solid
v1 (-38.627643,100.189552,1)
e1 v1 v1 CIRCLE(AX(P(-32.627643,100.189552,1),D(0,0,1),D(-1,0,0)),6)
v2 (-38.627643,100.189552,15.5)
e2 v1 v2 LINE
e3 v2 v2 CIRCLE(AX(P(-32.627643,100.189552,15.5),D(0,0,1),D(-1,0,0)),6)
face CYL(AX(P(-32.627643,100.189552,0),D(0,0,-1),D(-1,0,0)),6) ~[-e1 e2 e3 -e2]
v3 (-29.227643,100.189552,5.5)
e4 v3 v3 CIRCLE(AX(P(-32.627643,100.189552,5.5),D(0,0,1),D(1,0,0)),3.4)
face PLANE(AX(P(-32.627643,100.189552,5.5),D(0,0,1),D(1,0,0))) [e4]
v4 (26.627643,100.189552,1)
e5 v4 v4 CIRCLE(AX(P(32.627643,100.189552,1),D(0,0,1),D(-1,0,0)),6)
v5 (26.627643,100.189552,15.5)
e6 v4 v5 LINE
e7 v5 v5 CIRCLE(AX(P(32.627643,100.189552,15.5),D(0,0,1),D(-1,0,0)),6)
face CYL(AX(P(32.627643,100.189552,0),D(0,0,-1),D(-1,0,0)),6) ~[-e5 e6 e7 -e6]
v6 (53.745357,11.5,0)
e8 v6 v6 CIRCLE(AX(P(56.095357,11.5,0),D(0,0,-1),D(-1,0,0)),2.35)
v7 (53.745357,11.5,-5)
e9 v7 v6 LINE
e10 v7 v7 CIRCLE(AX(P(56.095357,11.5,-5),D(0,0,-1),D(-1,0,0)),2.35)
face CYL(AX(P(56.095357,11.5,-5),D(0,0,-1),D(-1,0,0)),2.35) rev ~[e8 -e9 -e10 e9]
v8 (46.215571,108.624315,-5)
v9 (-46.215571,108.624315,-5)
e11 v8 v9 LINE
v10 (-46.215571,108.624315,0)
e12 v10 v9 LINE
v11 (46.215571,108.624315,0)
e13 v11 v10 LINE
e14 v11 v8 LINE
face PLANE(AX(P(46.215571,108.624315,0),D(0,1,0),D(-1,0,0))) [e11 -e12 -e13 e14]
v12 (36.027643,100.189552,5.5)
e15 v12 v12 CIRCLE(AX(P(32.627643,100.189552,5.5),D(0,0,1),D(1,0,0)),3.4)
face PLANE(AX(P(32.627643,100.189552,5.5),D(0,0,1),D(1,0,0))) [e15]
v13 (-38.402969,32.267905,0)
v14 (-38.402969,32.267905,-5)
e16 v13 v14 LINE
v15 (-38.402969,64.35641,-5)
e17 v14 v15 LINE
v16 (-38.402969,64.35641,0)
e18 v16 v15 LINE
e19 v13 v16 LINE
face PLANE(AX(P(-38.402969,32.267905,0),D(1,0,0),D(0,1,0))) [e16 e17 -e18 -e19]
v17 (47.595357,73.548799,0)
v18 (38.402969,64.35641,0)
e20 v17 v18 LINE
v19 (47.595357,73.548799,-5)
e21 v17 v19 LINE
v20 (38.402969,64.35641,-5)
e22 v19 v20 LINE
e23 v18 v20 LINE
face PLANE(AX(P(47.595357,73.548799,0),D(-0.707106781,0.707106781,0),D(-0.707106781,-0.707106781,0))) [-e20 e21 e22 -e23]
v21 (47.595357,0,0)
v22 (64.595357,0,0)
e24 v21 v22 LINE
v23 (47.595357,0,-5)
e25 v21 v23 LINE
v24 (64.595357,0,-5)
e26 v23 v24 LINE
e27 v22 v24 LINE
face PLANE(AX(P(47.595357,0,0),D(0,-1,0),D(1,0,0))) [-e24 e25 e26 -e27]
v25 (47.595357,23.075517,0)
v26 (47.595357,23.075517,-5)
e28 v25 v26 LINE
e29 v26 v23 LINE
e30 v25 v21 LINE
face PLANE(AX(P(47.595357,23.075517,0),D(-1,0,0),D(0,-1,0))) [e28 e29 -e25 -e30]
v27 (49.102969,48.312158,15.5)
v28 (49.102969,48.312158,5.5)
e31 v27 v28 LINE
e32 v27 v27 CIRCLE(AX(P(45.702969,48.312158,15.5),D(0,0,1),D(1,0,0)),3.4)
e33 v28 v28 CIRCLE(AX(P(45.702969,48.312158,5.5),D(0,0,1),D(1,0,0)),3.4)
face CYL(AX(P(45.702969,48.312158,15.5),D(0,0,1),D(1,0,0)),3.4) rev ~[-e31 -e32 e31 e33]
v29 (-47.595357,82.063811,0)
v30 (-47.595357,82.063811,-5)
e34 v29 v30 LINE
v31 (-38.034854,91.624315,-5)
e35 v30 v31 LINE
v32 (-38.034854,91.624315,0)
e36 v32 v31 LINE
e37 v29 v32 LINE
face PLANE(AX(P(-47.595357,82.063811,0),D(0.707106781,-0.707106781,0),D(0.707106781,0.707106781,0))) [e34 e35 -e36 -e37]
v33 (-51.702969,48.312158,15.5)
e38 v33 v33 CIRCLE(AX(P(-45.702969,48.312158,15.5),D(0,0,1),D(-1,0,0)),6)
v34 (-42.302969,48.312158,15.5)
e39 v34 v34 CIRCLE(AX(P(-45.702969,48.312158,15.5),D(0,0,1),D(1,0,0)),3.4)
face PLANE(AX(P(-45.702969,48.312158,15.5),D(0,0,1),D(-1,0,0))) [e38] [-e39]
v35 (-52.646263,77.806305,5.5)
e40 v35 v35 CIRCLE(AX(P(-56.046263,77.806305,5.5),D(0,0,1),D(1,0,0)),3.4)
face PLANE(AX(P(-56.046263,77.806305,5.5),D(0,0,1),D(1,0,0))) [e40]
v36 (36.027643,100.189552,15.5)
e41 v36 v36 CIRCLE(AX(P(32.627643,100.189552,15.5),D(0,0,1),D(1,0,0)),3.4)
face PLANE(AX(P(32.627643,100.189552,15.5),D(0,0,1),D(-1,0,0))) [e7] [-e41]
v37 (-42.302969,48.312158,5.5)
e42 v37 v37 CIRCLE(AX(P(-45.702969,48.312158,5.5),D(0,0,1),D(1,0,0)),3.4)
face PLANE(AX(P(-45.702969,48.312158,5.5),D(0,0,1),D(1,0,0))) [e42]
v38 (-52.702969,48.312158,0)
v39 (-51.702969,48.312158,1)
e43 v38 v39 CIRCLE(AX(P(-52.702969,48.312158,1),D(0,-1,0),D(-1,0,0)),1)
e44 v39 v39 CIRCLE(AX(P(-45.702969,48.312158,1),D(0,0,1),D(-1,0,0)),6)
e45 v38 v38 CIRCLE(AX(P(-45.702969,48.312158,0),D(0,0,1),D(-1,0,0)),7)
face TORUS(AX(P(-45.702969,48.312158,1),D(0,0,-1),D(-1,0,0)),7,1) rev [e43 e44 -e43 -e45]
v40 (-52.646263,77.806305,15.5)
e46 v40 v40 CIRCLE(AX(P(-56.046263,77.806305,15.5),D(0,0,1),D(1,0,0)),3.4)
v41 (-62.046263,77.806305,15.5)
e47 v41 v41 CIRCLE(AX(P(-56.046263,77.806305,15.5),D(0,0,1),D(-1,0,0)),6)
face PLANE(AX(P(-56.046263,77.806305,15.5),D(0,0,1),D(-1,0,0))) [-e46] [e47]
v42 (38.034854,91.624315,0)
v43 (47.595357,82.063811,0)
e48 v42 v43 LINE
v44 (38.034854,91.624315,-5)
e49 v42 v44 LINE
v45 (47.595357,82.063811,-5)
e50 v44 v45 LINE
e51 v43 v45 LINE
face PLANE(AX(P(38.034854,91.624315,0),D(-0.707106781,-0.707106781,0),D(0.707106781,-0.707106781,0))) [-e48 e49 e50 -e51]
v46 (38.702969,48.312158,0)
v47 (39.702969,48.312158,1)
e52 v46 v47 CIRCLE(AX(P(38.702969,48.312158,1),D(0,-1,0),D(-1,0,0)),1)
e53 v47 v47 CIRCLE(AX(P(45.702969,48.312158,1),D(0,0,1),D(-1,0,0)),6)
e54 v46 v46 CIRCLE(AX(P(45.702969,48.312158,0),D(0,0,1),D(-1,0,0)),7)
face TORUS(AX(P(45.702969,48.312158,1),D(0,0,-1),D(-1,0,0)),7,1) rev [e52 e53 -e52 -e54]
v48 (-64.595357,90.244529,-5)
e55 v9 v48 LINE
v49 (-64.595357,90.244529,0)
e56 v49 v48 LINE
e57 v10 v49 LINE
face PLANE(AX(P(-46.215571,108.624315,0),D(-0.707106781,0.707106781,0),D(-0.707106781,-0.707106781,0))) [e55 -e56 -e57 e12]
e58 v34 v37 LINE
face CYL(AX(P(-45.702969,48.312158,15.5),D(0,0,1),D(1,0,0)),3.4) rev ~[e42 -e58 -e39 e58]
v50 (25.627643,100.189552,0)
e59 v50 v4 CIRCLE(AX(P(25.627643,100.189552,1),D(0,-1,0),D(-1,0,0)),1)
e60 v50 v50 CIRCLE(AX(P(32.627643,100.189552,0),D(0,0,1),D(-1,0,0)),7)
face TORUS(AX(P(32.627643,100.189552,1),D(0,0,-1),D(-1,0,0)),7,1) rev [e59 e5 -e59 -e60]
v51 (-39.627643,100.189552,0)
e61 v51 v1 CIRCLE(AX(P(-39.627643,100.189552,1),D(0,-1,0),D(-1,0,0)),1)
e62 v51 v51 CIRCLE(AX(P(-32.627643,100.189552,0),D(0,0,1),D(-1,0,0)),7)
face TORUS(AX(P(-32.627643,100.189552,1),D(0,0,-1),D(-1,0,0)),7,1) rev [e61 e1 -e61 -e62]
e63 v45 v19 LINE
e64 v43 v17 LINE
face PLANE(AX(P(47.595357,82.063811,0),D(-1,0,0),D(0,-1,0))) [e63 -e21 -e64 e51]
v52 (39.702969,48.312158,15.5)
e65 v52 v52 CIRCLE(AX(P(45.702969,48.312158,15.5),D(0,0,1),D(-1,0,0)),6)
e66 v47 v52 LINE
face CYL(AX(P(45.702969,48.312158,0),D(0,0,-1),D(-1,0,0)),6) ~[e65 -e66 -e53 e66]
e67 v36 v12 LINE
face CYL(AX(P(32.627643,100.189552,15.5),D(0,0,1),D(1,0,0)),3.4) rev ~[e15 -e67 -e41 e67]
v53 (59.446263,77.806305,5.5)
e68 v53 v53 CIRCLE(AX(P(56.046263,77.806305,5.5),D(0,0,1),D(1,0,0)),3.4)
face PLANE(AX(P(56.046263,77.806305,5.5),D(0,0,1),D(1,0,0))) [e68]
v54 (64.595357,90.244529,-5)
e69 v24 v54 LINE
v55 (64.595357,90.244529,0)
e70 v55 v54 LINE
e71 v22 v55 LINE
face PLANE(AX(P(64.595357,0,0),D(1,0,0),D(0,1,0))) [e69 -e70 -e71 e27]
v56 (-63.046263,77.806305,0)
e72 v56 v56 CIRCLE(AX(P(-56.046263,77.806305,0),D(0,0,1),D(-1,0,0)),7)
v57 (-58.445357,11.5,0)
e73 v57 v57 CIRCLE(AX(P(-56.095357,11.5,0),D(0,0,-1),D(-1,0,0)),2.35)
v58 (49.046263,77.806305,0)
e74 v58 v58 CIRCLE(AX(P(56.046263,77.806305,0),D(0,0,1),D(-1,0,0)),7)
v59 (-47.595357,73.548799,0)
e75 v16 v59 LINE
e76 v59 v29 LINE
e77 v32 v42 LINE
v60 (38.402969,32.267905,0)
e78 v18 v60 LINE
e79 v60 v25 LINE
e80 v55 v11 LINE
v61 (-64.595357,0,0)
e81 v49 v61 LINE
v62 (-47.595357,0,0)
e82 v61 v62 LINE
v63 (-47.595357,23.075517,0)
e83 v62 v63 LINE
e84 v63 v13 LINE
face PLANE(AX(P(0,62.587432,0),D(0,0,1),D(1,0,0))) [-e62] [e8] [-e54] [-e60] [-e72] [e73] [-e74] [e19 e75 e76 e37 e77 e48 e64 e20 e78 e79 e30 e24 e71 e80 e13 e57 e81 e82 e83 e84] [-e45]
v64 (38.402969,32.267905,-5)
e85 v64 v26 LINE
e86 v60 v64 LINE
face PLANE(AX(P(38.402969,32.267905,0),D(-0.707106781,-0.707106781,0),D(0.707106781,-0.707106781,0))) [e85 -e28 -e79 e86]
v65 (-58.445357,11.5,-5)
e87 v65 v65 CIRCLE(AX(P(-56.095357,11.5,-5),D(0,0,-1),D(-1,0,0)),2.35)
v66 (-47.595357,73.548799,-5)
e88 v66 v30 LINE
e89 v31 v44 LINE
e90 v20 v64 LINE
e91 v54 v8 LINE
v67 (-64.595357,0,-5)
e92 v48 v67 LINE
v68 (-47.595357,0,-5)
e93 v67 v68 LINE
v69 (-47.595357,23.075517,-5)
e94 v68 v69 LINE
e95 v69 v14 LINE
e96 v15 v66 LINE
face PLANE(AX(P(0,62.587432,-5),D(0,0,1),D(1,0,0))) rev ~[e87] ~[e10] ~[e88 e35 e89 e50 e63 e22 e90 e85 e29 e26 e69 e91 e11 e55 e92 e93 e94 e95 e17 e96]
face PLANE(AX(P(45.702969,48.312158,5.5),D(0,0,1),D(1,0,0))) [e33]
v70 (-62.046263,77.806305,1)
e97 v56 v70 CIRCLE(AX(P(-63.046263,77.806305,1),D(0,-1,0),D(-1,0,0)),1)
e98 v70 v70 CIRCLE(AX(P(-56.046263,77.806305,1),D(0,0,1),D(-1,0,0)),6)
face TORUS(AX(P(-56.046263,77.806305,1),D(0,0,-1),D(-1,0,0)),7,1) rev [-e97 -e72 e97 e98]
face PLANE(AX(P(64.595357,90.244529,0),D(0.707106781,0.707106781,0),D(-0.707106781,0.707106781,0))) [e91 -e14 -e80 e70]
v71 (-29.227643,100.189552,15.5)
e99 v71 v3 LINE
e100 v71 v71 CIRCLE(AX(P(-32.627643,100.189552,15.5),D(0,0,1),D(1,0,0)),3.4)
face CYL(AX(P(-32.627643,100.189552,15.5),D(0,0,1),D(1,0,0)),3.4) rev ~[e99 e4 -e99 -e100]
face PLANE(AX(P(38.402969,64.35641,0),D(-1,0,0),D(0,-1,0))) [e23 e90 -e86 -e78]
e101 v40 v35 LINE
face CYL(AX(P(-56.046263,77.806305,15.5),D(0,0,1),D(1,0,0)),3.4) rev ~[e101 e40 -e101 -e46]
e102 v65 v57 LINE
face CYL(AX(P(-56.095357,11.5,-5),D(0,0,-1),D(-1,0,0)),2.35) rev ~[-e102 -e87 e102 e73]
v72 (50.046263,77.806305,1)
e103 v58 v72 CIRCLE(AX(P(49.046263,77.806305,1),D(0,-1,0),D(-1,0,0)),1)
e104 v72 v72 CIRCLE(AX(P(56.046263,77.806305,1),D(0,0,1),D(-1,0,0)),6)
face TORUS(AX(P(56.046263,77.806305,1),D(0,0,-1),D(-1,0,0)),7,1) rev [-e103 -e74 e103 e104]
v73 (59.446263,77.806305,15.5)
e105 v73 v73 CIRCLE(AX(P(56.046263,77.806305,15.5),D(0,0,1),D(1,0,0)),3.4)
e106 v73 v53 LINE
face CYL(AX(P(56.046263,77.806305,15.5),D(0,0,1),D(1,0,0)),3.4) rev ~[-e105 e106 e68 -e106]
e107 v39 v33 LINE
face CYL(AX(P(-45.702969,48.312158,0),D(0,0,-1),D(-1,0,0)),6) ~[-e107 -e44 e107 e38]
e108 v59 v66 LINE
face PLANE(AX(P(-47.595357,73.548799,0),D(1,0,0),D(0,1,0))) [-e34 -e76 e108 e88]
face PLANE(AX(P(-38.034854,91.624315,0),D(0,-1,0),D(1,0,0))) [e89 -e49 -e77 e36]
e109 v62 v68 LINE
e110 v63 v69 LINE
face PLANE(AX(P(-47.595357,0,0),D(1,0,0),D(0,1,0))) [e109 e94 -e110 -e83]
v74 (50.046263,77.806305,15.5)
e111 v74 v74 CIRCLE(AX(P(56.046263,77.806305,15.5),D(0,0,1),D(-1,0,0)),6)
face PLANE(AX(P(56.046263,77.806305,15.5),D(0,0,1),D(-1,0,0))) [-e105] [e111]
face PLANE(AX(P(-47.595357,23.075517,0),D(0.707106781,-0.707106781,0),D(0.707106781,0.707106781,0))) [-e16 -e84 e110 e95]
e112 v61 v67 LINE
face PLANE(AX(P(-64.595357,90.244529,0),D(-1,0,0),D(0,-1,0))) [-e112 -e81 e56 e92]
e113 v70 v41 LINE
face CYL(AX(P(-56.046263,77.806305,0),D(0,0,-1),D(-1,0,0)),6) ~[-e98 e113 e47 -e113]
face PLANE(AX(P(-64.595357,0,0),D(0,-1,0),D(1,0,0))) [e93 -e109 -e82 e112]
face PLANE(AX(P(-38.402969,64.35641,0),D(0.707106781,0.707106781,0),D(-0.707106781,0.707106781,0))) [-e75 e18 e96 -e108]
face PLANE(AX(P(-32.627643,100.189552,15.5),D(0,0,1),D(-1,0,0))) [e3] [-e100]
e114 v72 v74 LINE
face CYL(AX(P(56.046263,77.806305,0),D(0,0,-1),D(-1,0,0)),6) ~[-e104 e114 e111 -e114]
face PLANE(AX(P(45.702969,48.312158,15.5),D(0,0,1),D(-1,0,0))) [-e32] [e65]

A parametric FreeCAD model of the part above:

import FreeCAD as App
import Part
import Sketcher
from FreeCAD import Vector


def edges_at(feature, points):
    """Names of the edges that pass closest to the given points."""
    edges = feature.Shape.Edges
    near = lambda p: min(range(len(edges)), key=lambda i: edges[i].distToShape(Part.Vertex(*p))[0])
    return sorted({f"Edge{near(p) + 1}" for p in points})


def add_polygon(sketch, points):
    """Adds a closed chain of lines whose ends are joined by coincident constraints."""
    first, n = sketch.GeometryCount, len(points)
    for a, b in zip(points, points[1:] + points[:1]):
        sketch.addGeometry(Part.LineSegment(App.Vector(*a, 0), App.Vector(*b, 0)), False)
    for i in range(n):
        sketch.addConstraint(Sketcher.Constraint("Coincident", first + i, 2, first + (i + 1) % n, 1))

doc = App.newDocument("Part")
params = doc.addObject("Spreadsheet::Sheet", "Params")
for row, (alias, value) in enumerate([
    ("sketch1_width", "17 mm"),
    ("sketch1_length", "13 mm"),
    ("pad1_length", "5 mm"),
    ("sketch2_diameter", "12 mm"),
    ("pad2_length", "15.5 mm"),
    ("fillet_radius", "1 mm"),
    ("sketch3_diameter", "4.7 mm"),
    ("sketch4_diameter", "4.7 mm"),
    ("sketch5_diameter", "6.8 mm"),
    ("pocket3_length", "10 mm"),
], start=1):
    params.set(f"A{row}", alias)
    params.set(f"B{row}", "=" + value)
    params.setAlias(f"B{row}", alias)

body = doc.addObject("PartDesign::Body", "Body")

# Sketch on XY plane
sketch1 = body.newObject("Sketcher::SketchObject", "Sketch")
sketch1.AttachmentSupport = (doc.getObject("XY_Plane"), [""])
sketch1.MapMode = "FlatFace"
add_polygon(sketch1, [(-38.034854, 91.624315), (38.034854, 91.624315), (47.595357, 82.063811), (47.595357, 73.548799), (38.402969, 64.35641), (38.402969, 32.267905), (47.595357, 23.075517), (47.595357, 0), (64.595357, 0), (64.595357, 90.244529), (46.215571, 108.624315), (-46.215571, 108.624315), (-64.595357, 90.244529), (-64.595357, 0), (-47.595357, 0), (-47.595357, 23.075517), (-38.402969, 32.267905), (-38.402969, 64.35641), (-47.595357, 73.548799), (-47.595357, 82.063811)])  # lines 0-19
sketch1.addConstraint([
    Sketcher.Constraint("Horizontal", 0),
    Sketcher.Constraint("Vertical", 2),
    Sketcher.Constraint("Vertical", 4),
    Sketcher.Constraint("Vertical", 6),
    Sketcher.Constraint("Horizontal", 7),
    Sketcher.Constraint("Vertical", 8),
    Sketcher.Constraint("Horizontal", 10),
    Sketcher.Constraint("Vertical", 12),
    Sketcher.Constraint("Horizontal", 13),
    Sketcher.Constraint("Vertical", 14),
    Sketcher.Constraint("Vertical", 16),
    Sketcher.Constraint("Vertical", 18),
    Sketcher.Constraint("Symmetric", 7, 2, 12, 2, -1, 1),
    Sketcher.Constraint("Symmetric", 6, 2, 13, 2, -2),
    Sketcher.Constraint("Symmetric", 4, 2, 15, 2, -2),
    Sketcher.Constraint("Symmetric", 2, 2, 17, 2, -2),
    Sketcher.Constraint("Perpendicular", 1, 3),
    Sketcher.Constraint("Perpendicular", 3, 5),
    Sketcher.Constraint("Parallel", 5, 9),
    Sketcher.Constraint("Perpendicular", 9, 11),
    Sketcher.Constraint("Parallel", 11, 15),
    Sketcher.Constraint("Perpendicular", 15, 17),
    Sketcher.Constraint("Perpendicular", 17, 19),
    Sketcher.Constraint("Horizontal", 8, 2, 11, 2),
    Sketcher.Constraint("Horizontal", 5, 2, 14, 2),
    Sketcher.Constraint("Horizontal", 1, 2, 18, 2),
    Sketcher.Constraint("Vertical", 2, 2, 5, 2),
    Sketcher.Constraint("DistanceX", 7, 1, 7, 2, 17.0),
    Sketcher.Constraint("Distance", 3, 13.0),
    Sketcher.Constraint("DistanceY", 0, 2, 9, 2, 17.0),
    Sketcher.Constraint("DistanceX", 10, 2, 10, 1, 92.431142),
    Sketcher.Constraint("DistanceY", 8, 1, 8, 2, 90.244529),
    Sketcher.Constraint("DistanceY", -1, 1, 2, 2, 73.548799),
    Sketcher.Constraint("DistanceY", 3, 2, 1, 2, 17.707401),
    Sketcher.Constraint("DistanceY", 5, 2, 0, 2, 68.548799),
    Sketcher.Constraint("DistanceX", 3, 2, 9, 2, 7.812602),
])
sketch1.setExpression("Constraints[47]", "Params.sketch1_width")
sketch1.setExpression("Constraints[48]", "Params.sketch1_length")
pad1 = body.newObject("PartDesign::Pad", "Pad")
pad1.Profile = sketch1
pad1.setExpression("Length", "Params.pad1_length")
pad1.Reversed = True

# Sketch on XY plane
sketch2 = body.newObject("Sketcher::SketchObject", "Sketch001")
sketch2.AttachmentSupport = (doc.getObject("XY_Plane"), [""])
sketch2.MapMode = "FlatFace"
sketch2.addGeometry([
    Part.Circle(Vector(45.702969, 48.312158, 0), Vector(0, 0, 1), 6),  # 0
    Part.Circle(Vector(56.046263, 77.806305, 0), Vector(0, 0, 1), 6),  # 1
    Part.Circle(Vector(32.627643, 100.189552, 0), Vector(0, 0, 1), 6),  # 2
    Part.Circle(Vector(-32.627643, 100.189552, 0), Vector(0, 0, 1), 6),  # 3
    Part.Circle(Vector(-45.702969, 48.312158, 0), Vector(0, 0, 1), 6),  # 4
    Part.Circle(Vector(-56.046263, 77.806305, 0), Vector(0, 0, 1), 6),  # 5
], False)
sketch2.addConstraint([
    Sketcher.Constraint("Equal", 0, 1),
    Sketcher.Constraint("Equal", 1, 2),
    Sketcher.Constraint("Equal", 2, 3),
    Sketcher.Constraint("Equal", 3, 4),
    Sketcher.Constraint("Equal", 4, 5),
    Sketcher.Constraint("Symmetric", 2, 3, 3, 3, -2),
    Sketcher.Constraint("Symmetric", 0, 3, 4, 3, -2),
    Sketcher.Constraint("Symmetric", 1, 3, 5, 3, -2),
    Sketcher.Constraint("Diameter", 0, 12.0),
    Sketcher.Constraint("DistanceX", -1, 1, 0, 3, 45.702969),
    Sketcher.Constraint("DistanceX", 2, 3, 1, 3, 23.41862),
    Sketcher.Constraint("DistanceY", -1, 1, 0, 3, 48.312158),
    Sketcher.Constraint("DistanceX", -1, 1, 1, 3, 56.046263),
    Sketcher.Constraint("DistanceY", -1, 1, 1, 3, 77.806305),
    Sketcher.Constraint("DistanceY", -1, 1, 2, 3, 100.189552),
])
sketch2.setExpression("Constraints[8]", "Params.sketch2_diameter")
pad2 = body.newObject("PartDesign::Pad", "Pad001")
pad2.Profile = sketch2
pad2.setExpression("Length", "Params.pad2_length")
doc.recompute()

fillet = body.newObject("PartDesign::Fillet", "Fillet")
fillet.Base = (pad2, edges_at(pad2, [
    (51.703, 48.312, 0),
    (-50.046, 77.806, 0),
    (-39.703, 48.312, 0),
    (-26.628, 100.19, 0),
    (38.628, 100.19, 0),
    (62.046, 77.806, 0),
]))
fillet.setExpression("Radius", "Params.fillet_radius")

# Sketch on XY plane
sketch3 = body.newObject("Sketcher::SketchObject", "Sketch002")
sketch3.AttachmentSupport = (doc.getObject("XY_Plane"), [""])
sketch3.MapMode = "FlatFace"
sketch3.AttachmentOffset = App.Placement(Vector(0, 0, -5), App.Rotation())
sketch3.addGeometry(Part.Circle(Vector(-56.095357, 11.5, 0), Vector(0, 0, 1), 2.35), False)
sketch3.addConstraint([
    Sketcher.Constraint("Diameter", 0, 4.7),
    Sketcher.Constraint("DistanceY", -1, 1, 0, 3, 11.5),
    Sketcher.Constraint("DistanceX", 0, 3, -1, 1, 56.095357),
])
sketch3.setExpression("Constraints[0]", "Params.sketch3_diameter")
pocket1 = body.newObject("PartDesign::Pocket", "Pocket")
pocket1.Profile = sketch3
pocket1.Type = "UpToFirst"
pocket1.Reversed = True

# Sketch on XY plane
sketch4 = body.newObject("Sketcher::SketchObject", "Sketch003")
sketch4.AttachmentSupport = (doc.getObject("XY_Plane"), [""])
sketch4.MapMode = "FlatFace"
sketch4.AttachmentOffset = App.Placement(Vector(0, 0, -5), App.Rotation())
sketch4.addGeometry(Part.Circle(Vector(56.095357, 11.5, 0), Vector(0, 0, 1), 2.35), False)
sketch4.addConstraint([
    Sketcher.Constraint("Diameter", 0, 4.7),
    Sketcher.Constraint("DistanceY", -1, 1, 0, 3, 11.5),
    Sketcher.Constraint("DistanceX", -1, 1, 0, 3, 56.095357),
])
sketch4.setExpression("Constraints[0]", "Params.sketch4_diameter")
pocket2 = body.newObject("PartDesign::Pocket", "Pocket001")
pocket2.Profile = sketch4
pocket2.Type = "UpToFirst"
pocket2.Reversed = True

# Sketch on XY plane
sketch5 = body.newObject("Sketcher::SketchObject", "Sketch004")
sketch5.AttachmentSupport = (doc.getObject("XY_Plane"), [""])
sketch5.MapMode = "FlatFace"
sketch5.AttachmentOffset = App.Placement(Vector(0, 0, 15.5), App.Rotation())
sketch5.addGeometry([
    Part.Circle(Vector(-56.046263, 77.806305, 0), Vector(0, 0, 1), 3.4),  # 0
    Part.Circle(Vector(-32.627643, 100.189552, 0), Vector(0, 0, 1), 3.4),  # 1
    Part.Circle(Vector(32.627643, 100.189552, 0), Vector(0, 0, 1), 3.4),  # 2
    Part.Circle(Vector(56.046263, 77.806305, 0), Vector(0, 0, 1), 3.4),  # 3
    Part.Circle(Vector(45.702969, 48.312158, 0), Vector(0, 0, 1), 3.4),  # 4
    Part.Circle(Vector(-45.702969, 48.312158, 0), Vector(0, 0, 1), 3.4),  # 5
], False)
sketch5.addConstraint([
    Sketcher.Constraint("Equal", 0, 1),
    Sketcher.Constraint("Equal", 1, 2),
    Sketcher.Constraint("Equal", 2, 3),
    Sketcher.Constraint("Equal", 3, 4),
    Sketcher.Constraint("Equal", 4, 5),
    Sketcher.Constraint("Symmetric", 1, 3, 2, 3, -2),
    Sketcher.Constraint("Symmetric", 0, 3, 3, 3, -2),
    Sketcher.Constraint("Symmetric", 4, 3, 5, 3, -2),
    Sketcher.Constraint("Diameter", 0, 6.8),
    Sketcher.Constraint("DistanceX", -1, 1, 4, 3, 45.702969),
    Sketcher.Constraint("DistanceX", 0, 3, 1, 3, 23.41862),
    Sketcher.Constraint("DistanceX", 0, 3, -1, 1, 56.046263),
    Sketcher.Constraint("DistanceY", -1, 1, 0, 3, 77.806305),
    Sketcher.Constraint("DistanceY", -1, 1, 1, 3, 100.189552),
    Sketcher.Constraint("DistanceY", -1, 1, 4, 3, 48.312158),
])
sketch5.setExpression("Constraints[8]", "Params.sketch5_diameter")
pocket3 = body.newObject("PartDesign::Pocket", "Pocket002")
pocket3.Profile = sketch5
pocket3.setExpression("Length", "Params.pocket3_length")

doc.recompute()
